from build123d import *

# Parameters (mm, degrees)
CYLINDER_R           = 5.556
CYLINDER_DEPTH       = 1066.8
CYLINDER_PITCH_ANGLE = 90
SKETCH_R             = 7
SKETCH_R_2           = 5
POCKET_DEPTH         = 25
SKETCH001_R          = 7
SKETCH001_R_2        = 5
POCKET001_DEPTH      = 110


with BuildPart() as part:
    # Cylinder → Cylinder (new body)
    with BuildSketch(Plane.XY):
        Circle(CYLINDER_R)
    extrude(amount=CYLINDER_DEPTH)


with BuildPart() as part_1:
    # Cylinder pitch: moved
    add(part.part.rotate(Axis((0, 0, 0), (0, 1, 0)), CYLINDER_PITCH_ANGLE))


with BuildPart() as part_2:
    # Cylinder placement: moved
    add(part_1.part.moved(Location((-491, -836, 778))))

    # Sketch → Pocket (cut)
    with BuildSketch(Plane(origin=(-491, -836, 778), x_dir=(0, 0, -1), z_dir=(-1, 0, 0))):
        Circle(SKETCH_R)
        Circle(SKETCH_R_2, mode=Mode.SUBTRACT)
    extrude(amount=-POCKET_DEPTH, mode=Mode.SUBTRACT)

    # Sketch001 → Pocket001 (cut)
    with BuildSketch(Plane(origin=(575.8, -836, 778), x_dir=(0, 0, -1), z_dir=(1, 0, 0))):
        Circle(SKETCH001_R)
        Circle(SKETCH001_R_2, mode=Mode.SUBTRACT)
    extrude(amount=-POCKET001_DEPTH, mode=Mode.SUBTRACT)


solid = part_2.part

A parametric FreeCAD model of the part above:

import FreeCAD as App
import Part
import Sketcher

doc = App.newDocument("Part")
body = doc.addObject("PartDesign::Body", "Body")

# Sketch on XY plane
sketch1 = doc.addObject("Sketcher::SketchObject", "Sketch")
body.addObject(sketch1)
sketch1.AttachmentSupport = (doc.XY_Plane, [""])
sketch1.MapMode = "FlatFace"
sketch1.addGeometry(Part.Circle(App.Vector(0, 0, 0), App.Vector(0, 0, 1), 6), False)
sketch1.addConstraint([
    Sketcher.Constraint("Coincident", 0, 3, -1, 1),
    Sketcher.Constraint("Diameter", 0, 11.112),
])
pad1 = doc.addObject("PartDesign::Pad", "Pad")
body.addObject(pad1)
pad1.Profile = sketch1
pad1.Length = 1066.8
body2 = doc.addObject("PartDesign::Body", "Body001")
doc.recompute()

body.Placement = App.Placement(App.Vector(0, 0, 0), App.Rotation(App.Vector(0, 1, 0), 90))
boolean = doc.addObject("PartDesign::Boolean", "Boolean")
body2.addObject(boolean)
boolean.Type = "Fuse"
boolean.addObjects([body])
body3 = doc.addObject("PartDesign::Body", "Body002")
doc.recompute()

body2.Placement = App.Placement(App.Vector(-491, -836, 778), App.Rotation(App.Vector(0, 0, 1), 0))
boolean2 = doc.addObject("PartDesign::Boolean", "Boolean001")
body3.addObject(boolean2)
boolean2.Type = "Fuse"
boolean2.addObjects([body2])

# Sketch on YZ plane
sketch2 = doc.addObject("Sketcher::SketchObject", "Sketch001")
body3.addObject(sketch2)
sketch2.AttachmentSupport = (doc.getObject("YZ_Plane002"), [""])
sketch2.MapMode = "FlatFace"
sketch2.AttachmentOffset = App.Placement(App.Vector(0, 0, -491), App.Rotation())
sketch2.addGeometry([
    Part.Circle(App.Vector(-836, 778, 0), App.Vector(0, 0, 1), 7),
    Part.Circle(App.Vector(-836, 778, 0), App.Vector(0, 0, 1), 5),
], False)
sketch2.addConstraint([
    Sketcher.Constraint("Coincident", 1, 3, 0, 3),
    Sketcher.Constraint("Diameter", 0, 14.0),
    Sketcher.Constraint("Diameter", 1, 10.0),
    Sketcher.Constraint("DistanceX", 0, 3, -1, 1, 836.0),
    Sketcher.Constraint("DistanceY", -1, 1, 0, 3, 778.0),
])
pocket1 = doc.addObject("PartDesign::Pocket", "Pocket")
body3.addObject(pocket1)
pocket1.Profile = sketch2
pocket1.Length = 25
pocket1.Reversed = True

# Sketch on YZ plane
sketch3 = doc.addObject("Sketcher::SketchObject", "Sketch002")
body3.addObject(sketch3)
sketch3.AttachmentSupport = (doc.getObject("YZ_Plane002"), [""])
sketch3.MapMode = "FlatFace"
sketch3.AttachmentOffset = App.Placement(App.Vector(0, 0, 575.8), App.Rotation())
sketch3.addGeometry([
    Part.Circle(App.Vector(-836, 778, 0), App.Vector(0, 0, 1), 7),
    Part.Circle(App.Vector(-836, 778, 0), App.Vector(0, 0, 1), 5),
], False)
sketch3.addConstraint([
    Sketcher.Constraint("Coincident", 1, 3, 0, 3),
    Sketcher.Constraint("Diameter", 0, 14.0),
    Sketcher.Constraint("Diameter", 1, 10.0),
    Sketcher.Constraint("DistanceX", 0, 3, -1, 1, 836.0),
    Sketcher.Constraint("DistanceY", -1, 1, 0, 3, 778.0),
])
pocket2 = doc.addObject("PartDesign::Pocket", "Pocket001")
body3.addObject(pocket2)
pocket2.Profile = sketch3
pocket2.Length = 110

doc.recompute()
